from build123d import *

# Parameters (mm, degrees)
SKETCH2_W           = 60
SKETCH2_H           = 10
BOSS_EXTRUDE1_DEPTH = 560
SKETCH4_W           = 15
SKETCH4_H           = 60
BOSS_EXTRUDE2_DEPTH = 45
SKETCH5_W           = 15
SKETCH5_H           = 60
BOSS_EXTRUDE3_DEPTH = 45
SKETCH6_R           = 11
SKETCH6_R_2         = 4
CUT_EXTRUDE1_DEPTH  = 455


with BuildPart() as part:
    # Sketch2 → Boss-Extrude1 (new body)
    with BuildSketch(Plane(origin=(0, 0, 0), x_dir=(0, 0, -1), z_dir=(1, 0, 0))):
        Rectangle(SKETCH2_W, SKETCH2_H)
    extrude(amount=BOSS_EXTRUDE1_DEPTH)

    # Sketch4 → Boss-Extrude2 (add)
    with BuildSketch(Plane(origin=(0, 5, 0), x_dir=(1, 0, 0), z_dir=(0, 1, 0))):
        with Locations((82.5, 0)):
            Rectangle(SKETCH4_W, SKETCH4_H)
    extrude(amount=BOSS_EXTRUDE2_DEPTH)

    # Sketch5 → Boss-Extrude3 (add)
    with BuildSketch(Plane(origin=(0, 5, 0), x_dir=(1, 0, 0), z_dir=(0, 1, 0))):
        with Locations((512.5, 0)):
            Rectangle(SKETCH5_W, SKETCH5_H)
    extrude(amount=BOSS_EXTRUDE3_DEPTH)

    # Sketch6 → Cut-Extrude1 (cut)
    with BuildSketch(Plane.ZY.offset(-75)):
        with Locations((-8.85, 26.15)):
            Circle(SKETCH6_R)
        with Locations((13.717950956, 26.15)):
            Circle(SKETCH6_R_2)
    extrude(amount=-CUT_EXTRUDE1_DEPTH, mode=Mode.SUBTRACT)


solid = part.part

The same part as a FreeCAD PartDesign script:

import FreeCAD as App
import Part
import Sketcher

V = App.Vector
Q = App.Units.Quantity

doc = App.newDocument("Part")
params = doc.addObject("Spreadsheet::Sheet", "Params")
for row, (alias, value) in enumerate([
    ("sketch1_width", "10 mm"),
    ("sketch1_height", "60 mm"),
    ("pad1_length", "560 mm"),
    ("sketch2_width", "15 mm"),
    ("sketch2_height", "60 mm"),
    ("pad2_length", "45 mm"),
    ("sketch3_width", "15 mm"),
    ("sketch3_height", "60 mm"),
    ("pad3_length", "45 mm"),
    ("sketch4_diameter", "22 mm"),
    ("sketch4_diameter2", "8 mm"),
    ("pocket1_length", "455 mm"),
], start=1):
    params.set(f"A{row}", alias)
    params.set(f"B{row}", "=" + value)
    params.setAlias(f"B{row}", alias)

body = doc.addObject("PartDesign::Body", "Body")

# Sketch on YZ plane
sketch1 = body.newObject("Sketcher::SketchObject", "Sketch")
sketch1.AttachmentSupport = (doc.getObject("YZ_Plane"), [""])
sketch1.MapMode = "FlatFace"
sketch1.addGeometry([
    Part.LineSegment(V(5, 30, 0), V(-5, 30, 0)),
    Part.LineSegment(V(-5, 30, 0), V(-5, -30, 0)),
    Part.LineSegment(V(-5, -30, 0), V(5, -30, 0)),
    Part.LineSegment(V(5, -30, 0), V(5, 30, 0)),
], False)
sketch1.addConstraint([
    Sketcher.Constraint("Coincident", 0, 2, 1, 1),
    Sketcher.Constraint("Coincident", 1, 2, 2, 1),
    Sketcher.Constraint("Coincident", 2, 2, 3, 1),
    Sketcher.Constraint("Coincident", 3, 2, 0, 1),
    Sketcher.Constraint("Horizontal", 0),
    Sketcher.Constraint("Vertical", 1),
    Sketcher.Constraint("Horizontal", 2),
    Sketcher.Constraint("Vertical", 3),
    Sketcher.Constraint("Symmetric", 0, 2, 2, 2, -1, 1),
    Sketcher.Constraint("DistanceX", 0, 2, 0, 1, Q("10 mm")),
    Sketcher.Constraint("DistanceY", 1, 2, 1, 1, Q("60 mm")),
])
sketch1.setExpression("Constraints[9]", "Params.sketch1_width")
sketch1.setExpression("Constraints[10]", "Params.sketch1_height")
pad1 = body.newObject("PartDesign::Pad", "Pad")
pad1.Profile = sketch1
pad1.setExpression("Length", "Params.pad1_length")

# Sketch on XZ plane
sketch2 = body.newObject("Sketcher::SketchObject", "Sketch001")
sketch2.AttachmentSupport = (doc.getObject("XZ_Plane"), [""])
sketch2.MapMode = "FlatFace"
sketch2.AttachmentOffset = App.Placement(V(0, 0, -5), App.Rotation())
sketch2.addGeometry([
    Part.LineSegment(V(75, -30, 0), V(75, 30, 0)),
    Part.LineSegment(V(75, 30, 0), V(90, 30, 0)),
    Part.LineSegment(V(90, 30, 0), V(90, -30, 0)),
    Part.LineSegment(V(90, -30, 0), V(75, -30, 0)),
], False)
sketch2.addConstraint([
    Sketcher.Constraint("Coincident", 0, 2, 1, 1),
    Sketcher.Constraint("Coincident", 1, 2, 2, 1),
    Sketcher.Constraint("Coincident", 2, 2, 3, 1),
    Sketcher.Constraint("Coincident", 3, 2, 0, 1),
    Sketcher.Constraint("Vertical", 0),
    Sketcher.Constraint("Horizontal", 1),
    Sketcher.Constraint("Vertical", 2),
    Sketcher.Constraint("Horizontal", 3),
    Sketcher.Constraint("DistanceX", 1, 1, 1, 2, Q("15 mm")),
    Sketcher.Constraint("DistanceY", 0, 1, 0, 2, Q("60 mm")),
    Sketcher.Constraint("DistanceX", -1, 1, 0, 2, Q("75 mm")),
    Sketcher.Constraint("DistanceY", -1, 1, 0, 2, Q("30 mm")),
])
sketch2.setExpression("Constraints[8]", "Params.sketch2_width")
sketch2.setExpression("Constraints[9]", "Params.sketch2_height")
pad2 = body.newObject("PartDesign::Pad", "Pad001")
pad2.Profile = sketch2
pad2.setExpression("Length", "Params.pad2_length")
pad2.Reversed = True

# Sketch on XZ plane
sketch3 = body.newObject("Sketcher::SketchObject", "Sketch002")
sketch3.AttachmentSupport = (doc.getObject("XZ_Plane"), [""])
sketch3.MapMode = "FlatFace"
sketch3.AttachmentOffset = App.Placement(V(0, 0, -5), App.Rotation())
sketch3.addGeometry([
    Part.LineSegment(V(505, -30, 0), V(505, 30, 0)),
    Part.LineSegment(V(505, 30, 0), V(520, 30, 0)),
    Part.LineSegment(V(520, 30, 0), V(520, -30, 0)),
    Part.LineSegment(V(520, -30, 0), V(505, -30, 0)),
], False)
sketch3.addConstraint([
    Sketcher.Constraint("Coincident", 0, 2, 1, 1),
    Sketcher.Constraint("Coincident", 1, 2, 2, 1),
    Sketcher.Constraint("Coincident", 2, 2, 3, 1),
    Sketcher.Constraint("Coincident", 3, 2, 0, 1),
    Sketcher.Constraint("Vertical", 0),
    Sketcher.Constraint("Horizontal", 1),
    Sketcher.Constraint("Vertical", 2),
    Sketcher.Constraint("Horizontal", 3),
    Sketcher.Constraint("DistanceX", 1, 1, 1, 2, Q("15 mm")),
    Sketcher.Constraint("DistanceY", 0, 1, 0, 2, Q("60 mm")),
    Sketcher.Constraint("DistanceX", -1, 1, 0, 2, Q("505 mm")),
    Sketcher.Constraint("DistanceY", -1, 1, 0, 2, Q("30 mm")),
])
sketch3.setExpression("Constraints[8]", "Params.sketch3_width")
sketch3.setExpression("Constraints[9]", "Params.sketch3_height")
pad3 = body.newObject("PartDesign::Pad", "Pad002")
pad3.Profile = sketch3
pad3.setExpression("Length", "Params.pad3_length")
pad3.Reversed = True

# Sketch on YZ plane
sketch4 = body.newObject("Sketcher::SketchObject", "Sketch003")
sketch4.AttachmentSupport = (doc.getObject("YZ_Plane"), [""])
sketch4.MapMode = "FlatFace"
sketch4.AttachmentOffset = App.Placement(V(0, 0, 75), App.Rotation())
sketch4.addGeometry([
    Part.Circle(V(26.1, -8.8, 0), V(0, 0, 1), 11),
    Part.Circle(V(26.1, 13.7, 0), V(0, 0, 1), 4),
], False)
sketch4.addConstraint([
    Sketcher.Constraint("Vertical", 0, 3, 1, 3),
    Sketcher.Constraint("Diameter", 0, Q("22 mm")),
    Sketcher.Constraint("Diameter", 1, Q("8 mm")),
    Sketcher.Constraint("DistanceX", -1, 1, 0, 3, Q("26.15 mm")),
    Sketcher.Constraint("DistanceY", 0, 3, -1, 1, Q("8.85 mm")),
    Sketcher.Constraint("DistanceY", -1, 1, 1, 3, Q("13.717951 mm")),
])
sketch4.setExpression("Constraints[1]", "Params.sketch4_diameter")
sketch4.setExpression("Constraints[2]", "Params.sketch4_diameter2")
pocket1 = body.newObject("PartDesign::Pocket", "Pocket")
pocket1.Profile = sketch4
pocket1.setExpression("Length", "Params.pocket1_length")
pocket1.Reversed = True

doc.recompute()
